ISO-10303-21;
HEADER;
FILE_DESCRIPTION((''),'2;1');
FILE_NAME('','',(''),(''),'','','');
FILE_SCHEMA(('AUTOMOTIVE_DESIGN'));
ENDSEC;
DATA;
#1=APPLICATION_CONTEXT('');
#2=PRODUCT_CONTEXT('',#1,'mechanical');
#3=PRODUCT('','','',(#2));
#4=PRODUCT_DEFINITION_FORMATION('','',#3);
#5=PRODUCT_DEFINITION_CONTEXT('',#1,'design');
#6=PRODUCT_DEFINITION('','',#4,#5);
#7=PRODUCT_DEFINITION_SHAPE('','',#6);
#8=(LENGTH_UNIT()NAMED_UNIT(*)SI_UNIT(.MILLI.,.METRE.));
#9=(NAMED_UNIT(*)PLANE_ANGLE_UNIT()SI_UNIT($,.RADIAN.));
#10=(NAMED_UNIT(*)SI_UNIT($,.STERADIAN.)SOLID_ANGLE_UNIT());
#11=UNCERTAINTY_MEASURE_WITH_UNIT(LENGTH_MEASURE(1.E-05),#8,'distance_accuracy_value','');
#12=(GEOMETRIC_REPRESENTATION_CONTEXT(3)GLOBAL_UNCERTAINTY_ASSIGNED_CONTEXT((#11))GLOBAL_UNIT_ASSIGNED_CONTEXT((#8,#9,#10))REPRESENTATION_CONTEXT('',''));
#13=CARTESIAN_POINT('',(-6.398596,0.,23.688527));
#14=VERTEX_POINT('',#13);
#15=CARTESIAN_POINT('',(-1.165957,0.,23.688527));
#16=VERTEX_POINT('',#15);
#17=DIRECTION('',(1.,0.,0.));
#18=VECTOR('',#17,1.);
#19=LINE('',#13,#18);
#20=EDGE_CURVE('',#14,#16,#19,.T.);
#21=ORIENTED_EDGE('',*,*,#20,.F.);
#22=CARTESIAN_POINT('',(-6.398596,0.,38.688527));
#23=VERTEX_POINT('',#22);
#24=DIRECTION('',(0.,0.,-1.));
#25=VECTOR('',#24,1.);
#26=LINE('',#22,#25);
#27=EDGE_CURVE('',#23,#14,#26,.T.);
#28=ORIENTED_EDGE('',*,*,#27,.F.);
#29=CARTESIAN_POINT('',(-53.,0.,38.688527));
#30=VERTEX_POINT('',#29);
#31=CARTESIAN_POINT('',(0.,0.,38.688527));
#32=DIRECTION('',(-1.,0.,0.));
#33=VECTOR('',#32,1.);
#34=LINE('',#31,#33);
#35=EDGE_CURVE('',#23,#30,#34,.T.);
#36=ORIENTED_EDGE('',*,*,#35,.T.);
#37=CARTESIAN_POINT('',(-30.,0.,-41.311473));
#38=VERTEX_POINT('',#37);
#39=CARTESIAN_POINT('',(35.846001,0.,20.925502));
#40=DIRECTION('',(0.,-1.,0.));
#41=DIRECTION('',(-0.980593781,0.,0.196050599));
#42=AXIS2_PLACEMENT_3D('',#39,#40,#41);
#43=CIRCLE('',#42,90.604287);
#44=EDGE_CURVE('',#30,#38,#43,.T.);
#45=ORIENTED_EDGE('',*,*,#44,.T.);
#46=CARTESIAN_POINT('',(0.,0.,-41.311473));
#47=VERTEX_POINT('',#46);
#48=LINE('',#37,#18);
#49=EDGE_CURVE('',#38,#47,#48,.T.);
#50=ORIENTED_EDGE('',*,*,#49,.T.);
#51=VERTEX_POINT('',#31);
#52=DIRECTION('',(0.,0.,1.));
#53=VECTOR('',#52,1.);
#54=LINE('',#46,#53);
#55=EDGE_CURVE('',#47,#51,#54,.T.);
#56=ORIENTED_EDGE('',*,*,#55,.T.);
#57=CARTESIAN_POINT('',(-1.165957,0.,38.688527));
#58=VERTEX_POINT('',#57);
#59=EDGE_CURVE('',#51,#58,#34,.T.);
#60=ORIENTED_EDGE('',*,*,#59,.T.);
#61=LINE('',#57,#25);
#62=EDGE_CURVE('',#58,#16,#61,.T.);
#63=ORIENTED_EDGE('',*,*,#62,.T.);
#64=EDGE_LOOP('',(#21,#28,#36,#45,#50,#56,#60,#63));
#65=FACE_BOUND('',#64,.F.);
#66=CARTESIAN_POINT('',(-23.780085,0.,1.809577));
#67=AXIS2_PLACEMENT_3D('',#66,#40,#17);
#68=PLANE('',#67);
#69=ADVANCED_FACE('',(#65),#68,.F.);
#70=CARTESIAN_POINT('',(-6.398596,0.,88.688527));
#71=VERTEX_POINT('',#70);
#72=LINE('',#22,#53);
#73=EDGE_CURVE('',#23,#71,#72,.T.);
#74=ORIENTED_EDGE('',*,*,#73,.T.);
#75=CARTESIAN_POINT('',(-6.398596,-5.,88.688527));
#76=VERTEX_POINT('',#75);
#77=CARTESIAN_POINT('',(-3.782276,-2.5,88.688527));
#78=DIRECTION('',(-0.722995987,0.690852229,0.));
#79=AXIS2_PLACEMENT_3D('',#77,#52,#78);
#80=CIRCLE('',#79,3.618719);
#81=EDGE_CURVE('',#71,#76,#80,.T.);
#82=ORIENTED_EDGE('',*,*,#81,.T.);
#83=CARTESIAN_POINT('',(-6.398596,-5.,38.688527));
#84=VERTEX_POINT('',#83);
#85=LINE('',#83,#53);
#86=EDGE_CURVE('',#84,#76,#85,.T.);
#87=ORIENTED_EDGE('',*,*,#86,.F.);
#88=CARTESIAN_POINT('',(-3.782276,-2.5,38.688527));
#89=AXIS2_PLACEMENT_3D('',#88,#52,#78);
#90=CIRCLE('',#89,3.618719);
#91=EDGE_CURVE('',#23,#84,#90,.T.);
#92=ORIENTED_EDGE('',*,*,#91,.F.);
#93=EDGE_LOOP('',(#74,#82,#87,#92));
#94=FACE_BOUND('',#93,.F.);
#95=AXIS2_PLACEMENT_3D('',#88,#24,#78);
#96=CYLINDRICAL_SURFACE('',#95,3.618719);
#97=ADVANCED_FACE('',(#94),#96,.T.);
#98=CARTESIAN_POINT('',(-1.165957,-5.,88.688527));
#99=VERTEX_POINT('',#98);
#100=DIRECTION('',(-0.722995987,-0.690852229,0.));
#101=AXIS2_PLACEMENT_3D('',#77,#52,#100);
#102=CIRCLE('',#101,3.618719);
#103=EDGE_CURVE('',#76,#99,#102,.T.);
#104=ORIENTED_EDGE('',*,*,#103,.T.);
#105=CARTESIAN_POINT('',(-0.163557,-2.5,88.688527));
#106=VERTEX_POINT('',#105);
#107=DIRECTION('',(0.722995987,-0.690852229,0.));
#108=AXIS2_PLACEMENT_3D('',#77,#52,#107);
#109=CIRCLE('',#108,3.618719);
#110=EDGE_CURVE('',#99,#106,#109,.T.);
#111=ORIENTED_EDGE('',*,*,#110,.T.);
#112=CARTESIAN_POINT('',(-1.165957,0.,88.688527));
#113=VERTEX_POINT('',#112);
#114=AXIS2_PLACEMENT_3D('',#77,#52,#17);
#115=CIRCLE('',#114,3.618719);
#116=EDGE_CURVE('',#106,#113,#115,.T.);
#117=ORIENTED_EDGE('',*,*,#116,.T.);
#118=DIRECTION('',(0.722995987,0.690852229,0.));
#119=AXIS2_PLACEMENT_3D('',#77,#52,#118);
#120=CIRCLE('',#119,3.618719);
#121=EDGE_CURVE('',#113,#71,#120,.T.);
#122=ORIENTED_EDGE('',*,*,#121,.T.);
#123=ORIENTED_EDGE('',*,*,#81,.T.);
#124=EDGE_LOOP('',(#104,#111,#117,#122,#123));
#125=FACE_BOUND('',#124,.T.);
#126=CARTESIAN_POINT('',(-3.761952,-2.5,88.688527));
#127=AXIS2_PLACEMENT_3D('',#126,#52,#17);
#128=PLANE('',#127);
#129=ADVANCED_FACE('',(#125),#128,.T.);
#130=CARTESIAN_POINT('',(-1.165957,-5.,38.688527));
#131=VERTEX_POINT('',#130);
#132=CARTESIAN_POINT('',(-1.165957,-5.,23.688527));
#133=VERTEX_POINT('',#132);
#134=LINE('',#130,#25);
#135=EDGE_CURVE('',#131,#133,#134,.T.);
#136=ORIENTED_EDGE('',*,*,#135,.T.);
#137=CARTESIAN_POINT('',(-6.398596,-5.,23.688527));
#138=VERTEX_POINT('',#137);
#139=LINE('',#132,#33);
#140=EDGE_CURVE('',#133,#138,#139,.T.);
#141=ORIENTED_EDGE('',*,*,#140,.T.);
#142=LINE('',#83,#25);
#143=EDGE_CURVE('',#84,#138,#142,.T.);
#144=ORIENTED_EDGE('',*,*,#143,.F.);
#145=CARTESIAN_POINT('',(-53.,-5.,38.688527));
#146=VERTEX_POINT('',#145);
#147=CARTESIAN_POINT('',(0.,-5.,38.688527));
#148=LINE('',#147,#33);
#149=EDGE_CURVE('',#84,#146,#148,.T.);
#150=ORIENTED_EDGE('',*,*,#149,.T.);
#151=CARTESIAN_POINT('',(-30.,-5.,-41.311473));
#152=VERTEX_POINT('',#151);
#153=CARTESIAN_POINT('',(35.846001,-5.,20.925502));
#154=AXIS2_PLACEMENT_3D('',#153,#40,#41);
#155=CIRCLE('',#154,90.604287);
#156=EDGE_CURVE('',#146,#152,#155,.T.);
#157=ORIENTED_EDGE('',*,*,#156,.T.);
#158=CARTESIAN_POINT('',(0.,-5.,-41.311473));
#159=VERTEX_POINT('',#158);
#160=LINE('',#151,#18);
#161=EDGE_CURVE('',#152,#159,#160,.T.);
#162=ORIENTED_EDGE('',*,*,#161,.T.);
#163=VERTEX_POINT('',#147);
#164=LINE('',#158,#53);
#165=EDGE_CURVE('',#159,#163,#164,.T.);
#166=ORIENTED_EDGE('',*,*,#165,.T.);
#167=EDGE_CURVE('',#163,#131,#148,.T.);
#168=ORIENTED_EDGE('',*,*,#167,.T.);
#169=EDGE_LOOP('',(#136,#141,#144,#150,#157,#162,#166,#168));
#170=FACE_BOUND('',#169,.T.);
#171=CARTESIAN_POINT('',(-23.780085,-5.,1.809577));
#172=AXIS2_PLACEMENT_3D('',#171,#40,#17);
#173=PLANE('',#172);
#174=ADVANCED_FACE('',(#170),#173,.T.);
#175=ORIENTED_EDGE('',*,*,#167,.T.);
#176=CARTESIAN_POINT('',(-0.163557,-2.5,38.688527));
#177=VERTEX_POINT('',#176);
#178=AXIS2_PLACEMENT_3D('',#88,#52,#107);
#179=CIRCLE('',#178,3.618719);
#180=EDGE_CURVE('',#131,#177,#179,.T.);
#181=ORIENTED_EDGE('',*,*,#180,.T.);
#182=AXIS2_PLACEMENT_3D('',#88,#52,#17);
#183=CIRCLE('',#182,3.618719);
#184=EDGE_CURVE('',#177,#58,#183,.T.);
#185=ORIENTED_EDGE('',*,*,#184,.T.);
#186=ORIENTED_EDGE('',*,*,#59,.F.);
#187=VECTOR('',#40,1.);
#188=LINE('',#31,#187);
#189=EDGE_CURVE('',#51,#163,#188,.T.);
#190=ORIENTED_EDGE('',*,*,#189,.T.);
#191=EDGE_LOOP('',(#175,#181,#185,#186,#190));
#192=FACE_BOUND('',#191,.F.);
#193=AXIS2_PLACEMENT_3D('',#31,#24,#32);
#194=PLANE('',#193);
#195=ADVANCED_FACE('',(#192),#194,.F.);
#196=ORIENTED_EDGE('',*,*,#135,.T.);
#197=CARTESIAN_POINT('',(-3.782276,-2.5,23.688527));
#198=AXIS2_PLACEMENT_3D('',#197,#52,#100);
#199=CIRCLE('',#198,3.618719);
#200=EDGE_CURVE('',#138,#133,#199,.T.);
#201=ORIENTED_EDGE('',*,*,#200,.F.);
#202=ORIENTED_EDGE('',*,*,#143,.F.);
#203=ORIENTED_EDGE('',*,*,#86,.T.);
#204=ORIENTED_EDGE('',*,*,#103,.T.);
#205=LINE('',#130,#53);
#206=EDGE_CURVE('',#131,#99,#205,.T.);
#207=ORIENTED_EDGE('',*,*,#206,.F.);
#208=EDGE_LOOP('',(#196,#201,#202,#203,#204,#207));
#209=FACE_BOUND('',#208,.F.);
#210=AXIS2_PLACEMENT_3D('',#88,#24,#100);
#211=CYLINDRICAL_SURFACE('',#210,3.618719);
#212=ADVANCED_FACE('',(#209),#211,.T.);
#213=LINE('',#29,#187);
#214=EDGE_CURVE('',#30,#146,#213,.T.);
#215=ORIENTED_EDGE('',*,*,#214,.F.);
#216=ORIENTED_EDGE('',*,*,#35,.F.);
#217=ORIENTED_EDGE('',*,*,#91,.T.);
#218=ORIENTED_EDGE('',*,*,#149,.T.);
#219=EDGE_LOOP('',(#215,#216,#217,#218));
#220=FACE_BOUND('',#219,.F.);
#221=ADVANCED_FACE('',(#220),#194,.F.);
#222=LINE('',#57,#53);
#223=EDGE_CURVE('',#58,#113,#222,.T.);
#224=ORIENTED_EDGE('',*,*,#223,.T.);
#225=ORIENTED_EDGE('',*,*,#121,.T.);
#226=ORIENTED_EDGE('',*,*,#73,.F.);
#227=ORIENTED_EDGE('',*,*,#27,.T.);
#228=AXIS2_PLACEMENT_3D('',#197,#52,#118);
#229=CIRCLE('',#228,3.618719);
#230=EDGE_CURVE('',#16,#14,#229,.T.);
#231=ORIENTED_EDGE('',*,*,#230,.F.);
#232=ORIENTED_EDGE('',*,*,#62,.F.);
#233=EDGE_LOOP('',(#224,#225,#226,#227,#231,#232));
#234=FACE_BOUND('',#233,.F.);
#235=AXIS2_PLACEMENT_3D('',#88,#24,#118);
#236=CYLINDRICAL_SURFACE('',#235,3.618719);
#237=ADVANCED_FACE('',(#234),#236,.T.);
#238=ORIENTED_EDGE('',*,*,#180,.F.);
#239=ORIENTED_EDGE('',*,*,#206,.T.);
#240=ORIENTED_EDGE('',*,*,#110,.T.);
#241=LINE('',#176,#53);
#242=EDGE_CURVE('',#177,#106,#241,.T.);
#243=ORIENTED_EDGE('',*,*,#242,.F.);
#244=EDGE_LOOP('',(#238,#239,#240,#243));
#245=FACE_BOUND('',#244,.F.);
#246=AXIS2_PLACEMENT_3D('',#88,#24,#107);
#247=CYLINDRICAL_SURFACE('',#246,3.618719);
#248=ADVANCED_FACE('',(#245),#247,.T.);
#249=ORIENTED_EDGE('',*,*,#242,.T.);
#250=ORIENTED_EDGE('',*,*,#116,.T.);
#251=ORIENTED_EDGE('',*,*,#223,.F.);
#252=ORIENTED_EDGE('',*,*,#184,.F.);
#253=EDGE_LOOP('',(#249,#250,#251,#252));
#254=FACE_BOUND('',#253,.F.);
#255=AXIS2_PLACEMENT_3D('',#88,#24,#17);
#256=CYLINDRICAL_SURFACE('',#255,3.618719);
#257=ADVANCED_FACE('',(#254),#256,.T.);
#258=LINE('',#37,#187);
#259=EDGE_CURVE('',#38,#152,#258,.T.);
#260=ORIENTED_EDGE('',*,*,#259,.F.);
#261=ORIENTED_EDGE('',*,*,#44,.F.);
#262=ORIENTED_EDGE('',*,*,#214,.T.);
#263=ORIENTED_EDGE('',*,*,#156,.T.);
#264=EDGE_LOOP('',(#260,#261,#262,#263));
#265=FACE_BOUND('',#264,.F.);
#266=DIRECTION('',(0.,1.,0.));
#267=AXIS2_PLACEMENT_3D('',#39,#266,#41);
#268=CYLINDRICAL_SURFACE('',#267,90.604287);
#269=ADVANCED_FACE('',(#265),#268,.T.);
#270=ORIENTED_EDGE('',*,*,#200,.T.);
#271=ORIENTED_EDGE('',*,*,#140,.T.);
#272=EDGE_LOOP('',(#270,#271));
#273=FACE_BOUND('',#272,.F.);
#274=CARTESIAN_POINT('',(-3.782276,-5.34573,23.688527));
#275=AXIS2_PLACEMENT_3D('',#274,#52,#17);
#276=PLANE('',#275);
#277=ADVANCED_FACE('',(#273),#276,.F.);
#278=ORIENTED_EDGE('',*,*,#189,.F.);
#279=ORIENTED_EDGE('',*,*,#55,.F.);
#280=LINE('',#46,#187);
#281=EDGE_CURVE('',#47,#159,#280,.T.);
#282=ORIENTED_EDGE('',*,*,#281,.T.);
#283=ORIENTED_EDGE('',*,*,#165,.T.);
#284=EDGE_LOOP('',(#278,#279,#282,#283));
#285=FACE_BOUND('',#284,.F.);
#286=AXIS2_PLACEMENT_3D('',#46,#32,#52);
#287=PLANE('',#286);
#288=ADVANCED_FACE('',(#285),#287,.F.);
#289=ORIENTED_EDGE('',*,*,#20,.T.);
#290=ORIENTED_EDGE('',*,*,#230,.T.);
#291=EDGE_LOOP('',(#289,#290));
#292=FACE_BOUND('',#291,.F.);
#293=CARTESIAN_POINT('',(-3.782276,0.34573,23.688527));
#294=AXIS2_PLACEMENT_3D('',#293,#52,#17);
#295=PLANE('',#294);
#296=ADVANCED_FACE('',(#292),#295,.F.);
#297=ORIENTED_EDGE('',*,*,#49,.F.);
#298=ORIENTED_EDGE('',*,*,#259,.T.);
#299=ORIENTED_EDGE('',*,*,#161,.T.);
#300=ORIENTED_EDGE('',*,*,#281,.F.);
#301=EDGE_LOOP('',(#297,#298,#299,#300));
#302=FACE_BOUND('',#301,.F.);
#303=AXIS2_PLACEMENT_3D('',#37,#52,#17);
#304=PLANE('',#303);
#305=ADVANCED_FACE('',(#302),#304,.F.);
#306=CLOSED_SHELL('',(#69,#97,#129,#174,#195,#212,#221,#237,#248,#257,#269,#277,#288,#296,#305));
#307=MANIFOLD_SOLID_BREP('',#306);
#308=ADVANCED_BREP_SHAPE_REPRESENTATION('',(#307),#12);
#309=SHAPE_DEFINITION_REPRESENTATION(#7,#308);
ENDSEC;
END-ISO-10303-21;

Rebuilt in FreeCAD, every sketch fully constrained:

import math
import FreeCAD as App
import Part
import Sketcher
from FreeCAD import Vector
Q = App.Units.Quantity

doc = App.newDocument("Part")
params = doc.addObject("Spreadsheet::Sheet", "Params")
for row, (alias, value) in enumerate([
    ("sketch1_width", "53 mm"),
    ("sketch1_width2", "30 mm"),
    ("sketch1_height", "80 mm"),
    ("pad1_length", "5 mm"),
    ("pad2_length", "15 mm"),
    ("pad3_length", "50 mm"),
], start=1):
    params.set(f"A{row}", alias)
    params.set(f"B{row}", "=" + value)
    params.setAlias(f"B{row}", alias)

body = doc.addObject("PartDesign::Body", "Body")

# Sketch on XZ plane
sketch1 = body.newObject("Sketcher::SketchObject", "Sketch")
sketch1.AttachmentSupport = (doc.getObject("XZ_Plane"), [""])
sketch1.MapMode = "FlatFace"
sketch1.addGeometry([
    Part.LineSegment(Vector(0, -41.311473, 0), Vector(0, 38.688527, 0)),
    Part.LineSegment(Vector(0, 38.688527, 0), Vector(-53, 38.688527, 0)),
    Part.ArcOfCircle(Part.Circle(Vector(35.846001, 20.925502, 0), Vector(0, 0, 1), 90.604287), math.radians(168.693897), math.radians(223.38599)),
    Part.LineSegment(Vector(-30, -41.311473, 0), Vector(0, -41.311473, 0)),
], False)
sketch1.addConstraint([
    Sketcher.Constraint("Coincident", 0, 2, 1, 1),
    Sketcher.Constraint("Coincident", 1, 2, 2, 1),
    Sketcher.Constraint("Coincident", 2, 2, 3, 1),
    Sketcher.Constraint("Coincident", 3, 2, 0, 1),
    Sketcher.Constraint("Vertical", 0),
    Sketcher.Constraint("Horizontal", 1),
    Sketcher.Constraint("Horizontal", 3),
    Sketcher.Constraint("PointOnObject", 0, 2, -2),
    Sketcher.Constraint("DistanceX", 1, 2, 1, 1, Q("53 mm")),
    Sketcher.Constraint("DistanceX", 3, 1, 3, 2, Q("30 mm")),
    Sketcher.Constraint("DistanceY", 0, 1, 0, 2, Q("80 mm")),
    Sketcher.Constraint("DistanceX", -1, 1, 2, 3, Q("35.846001 mm")),
    Sketcher.Constraint("DistanceY", -1, 1, 2, 3, Q("20.925502 mm")),
])
sketch1.setExpression("Constraints[8]", "Params.sketch1_width")
sketch1.setExpression("Constraints[9]", "Params.sketch1_width2")
sketch1.setExpression("Constraints[10]", "Params.sketch1_height")
pad1 = body.newObject("PartDesign::Pad", "Pad")
pad1.Profile = sketch1
pad1.setExpression("Length", "Params.pad1_length")

# Sketch on XY plane
sketch2 = body.newObject("Sketcher::SketchObject", "Sketch001")
sketch2.AttachmentSupport = (doc.getObject("XY_Plane"), [""])
sketch2.MapMode = "FlatFace"
sketch2.AttachmentOffset = App.Placement(Vector(0, 0, 38.688527), App.Rotation())
sketch2.addGeometry([
    Part.LineSegment(Vector(-6.398596, 0, 0), Vector(-1.165957, 0, 0)),
    Part.ArcOfCircle(Part.Circle(Vector(-3.782276, -2.5, 0), Vector(0, 0, 1), 3.618719), math.radians(43.697608), math.radians(136.302392)),
    Part.ArcOfCircle(Part.Circle(Vector(-3.782276, -2.5, 0), Vector(0, 0, 1), 3.618719), math.radians(-136.302392), math.radians(-43.697608)),
    Part.LineSegment(Vector(-1.165957, -5, 0), Vector(-6.398596, -5, 0)),
], False)
sketch2.addConstraint([
    Sketcher.Constraint("Coincident", 0, 1, 1, 2),
    Sketcher.Constraint("Coincident", 1, 1, 0, 2),
    Sketcher.Constraint("Coincident", 2, 1, 3, 2),
    Sketcher.Constraint("Coincident", 3, 1, 2, 2),
    Sketcher.Constraint("Horizontal", 0),
    Sketcher.Constraint("Horizontal", 3),
    Sketcher.Constraint("Coincident", 2, 3, 1, 3),
    Sketcher.Constraint("Equal", 1, 2),
    Sketcher.Constraint("PointOnObject", 0, 1, -1),
    Sketcher.Constraint("Vertical", 0, 1, 2, 1),
    Sketcher.Constraint("DistanceY", 2, 1, -1, 1, Q("5 mm")),
    Sketcher.Constraint("Radius", 1, Q("3.618719 mm")),
    Sketcher.Constraint("DistanceX", 1, 3, -1, 1, Q("3.782276 mm")),
])
pad2 = body.newObject("PartDesign::Pad", "Pad001")
pad2.Profile = sketch2
pad2.setExpression("Length", "Params.pad2_length")
pad2.Reversed = True

# Sketch on XY plane
sketch3 = body.newObject("Sketcher::SketchObject", "Sketch002")
sketch3.AttachmentSupport = (doc.getObject("XY_Plane"), [""])
sketch3.MapMode = "FlatFace"
sketch3.AttachmentOffset = App.Placement(Vector(0, 0, 38.688527), App.Rotation())
sketch3.addGeometry([
    Part.ArcOfCircle(Part.Circle(Vector(-3.782276, -2.5, 0), Vector(0, 0, 1), 3.618719), math.radians(-43.697608), math.radians(0)),  # 0
    Part.ArcOfCircle(Part.Circle(Vector(-3.782276, -2.5, 0), Vector(0, 0, 1), 3.618719), math.radians(0), math.radians(43.697608)),  # 1
    Part.ArcOfCircle(Part.Circle(Vector(-3.782276, -2.5, 0), Vector(0, 0, 1), 3.618719), math.radians(43.697608), math.radians(136.302392)),  # 2
    Part.ArcOfCircle(Part.Circle(Vector(-3.782276, -2.5, 0), Vector(0, 0, 1), 3.618719), math.radians(136.302392), math.radians(223.697608)),  # 3
    Part.ArcOfCircle(Part.Circle(Vector(-3.782276, -2.5, 0), Vector(0, 0, 1), 3.618719), math.radians(-136.302392), math.radians(-43.697608)),  # 4
], False)
sketch3.addConstraint([
    Sketcher.Constraint("Tangent", 0, 2, 1, 1),
    Sketcher.Constraint("Tangent", 1, 2, 2, 1),
    Sketcher.Constraint("Tangent", 2, 2, 3, 1),
    Sketcher.Constraint("Tangent", 3, 2, 4, 1),
    Sketcher.Constraint("Tangent", 4, 2, 0, 1),
    Sketcher.Constraint("Coincident", 2, 3, 0, 3),
    Sketcher.Constraint("PointOnObject", 1, 2, -1),
    Sketcher.Constraint("PointOnObject", 2, 2, -1),
    Sketcher.Constraint("Horizontal", 4, 3, 0, 2),
    Sketcher.Constraint("Horizontal", 3, 2, 4, 2),
    Sketcher.Constraint("Vertical", 2, 2, 3, 2),
    Sketcher.Constraint("DistanceY", 3, 2, -1, 1, Q("5 mm")),
    Sketcher.Constraint("Radius", 0, Q("3.618719 mm")),
    Sketcher.Constraint("DistanceX", 0, 3, -1, 1, Q("3.782276 mm")),
])
pad3 = body.newObject("PartDesign::Pad", "Pad002")
pad3.Profile = sketch3
pad3.setExpression("Length", "Params.pad3_length")

doc.recompute()
